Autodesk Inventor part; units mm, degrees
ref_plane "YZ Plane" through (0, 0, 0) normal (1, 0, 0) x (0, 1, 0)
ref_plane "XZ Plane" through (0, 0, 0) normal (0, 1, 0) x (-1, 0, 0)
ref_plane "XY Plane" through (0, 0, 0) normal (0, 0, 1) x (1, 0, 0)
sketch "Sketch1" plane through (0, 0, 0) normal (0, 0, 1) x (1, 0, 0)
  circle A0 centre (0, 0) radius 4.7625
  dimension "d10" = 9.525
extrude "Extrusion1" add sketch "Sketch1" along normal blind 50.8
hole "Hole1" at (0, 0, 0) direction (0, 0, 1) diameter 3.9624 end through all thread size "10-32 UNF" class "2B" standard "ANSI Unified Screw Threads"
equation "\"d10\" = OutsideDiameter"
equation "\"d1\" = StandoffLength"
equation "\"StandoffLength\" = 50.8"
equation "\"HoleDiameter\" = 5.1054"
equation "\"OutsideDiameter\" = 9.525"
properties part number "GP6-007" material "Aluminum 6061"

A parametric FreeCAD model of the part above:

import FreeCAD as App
import Part
import Sketcher
from FreeCAD import Vector
Q = App.Units.Quantity

doc = App.newDocument("Part")
body = doc.addObject("PartDesign::Body", "Body")

# Sketch on XY plane
sketch1 = body.newObject("Sketcher::SketchObject", "Sketch")
sketch1.AttachmentSupport = (doc.getObject("XY_Plane"), [""])
sketch1.MapMode = "FlatFace"
sketch1.addGeometry(Part.Circle(Vector(0, 0, 0), Vector(0, 0, 1), 4.8), False)
sketch1.addConstraint([
    Sketcher.Constraint("Coincident", 0, 3, -1, 1),
    Sketcher.Constraint("Diameter", 0, Q("0.375 in")),
])
pad1 = body.newObject("PartDesign::Pad", "Pad")
pad1.Profile = sketch1
pad1.Length = Q("2 in")

# Sketch on XY plane
sketch2 = body.newObject("Sketcher::SketchObject", "Sketch001")
sketch2.AttachmentSupport = (doc.getObject("XY_Plane"), [""])
sketch2.MapMode = "FlatFace"
sketch2.addGeometry(Part.Circle(Vector(0, 0, 0), Vector(0, 0, 1), 2), False)
sketch2.addConstraint([
    Sketcher.Constraint("Coincident", 0, 3, -1, 1),
    Sketcher.Constraint("Diameter", 0, Q("0.156 in")),
])
doc.recompute()
hole = body.newObject("PartDesign::Hole", "Hole")
hole.Profile = sketch2
hole.ThreadType = "None"
hole.Diameter = Q("0.156 in")
hole.DepthType = "ThroughAll"
hole.Reversed = True

doc.recompute()
